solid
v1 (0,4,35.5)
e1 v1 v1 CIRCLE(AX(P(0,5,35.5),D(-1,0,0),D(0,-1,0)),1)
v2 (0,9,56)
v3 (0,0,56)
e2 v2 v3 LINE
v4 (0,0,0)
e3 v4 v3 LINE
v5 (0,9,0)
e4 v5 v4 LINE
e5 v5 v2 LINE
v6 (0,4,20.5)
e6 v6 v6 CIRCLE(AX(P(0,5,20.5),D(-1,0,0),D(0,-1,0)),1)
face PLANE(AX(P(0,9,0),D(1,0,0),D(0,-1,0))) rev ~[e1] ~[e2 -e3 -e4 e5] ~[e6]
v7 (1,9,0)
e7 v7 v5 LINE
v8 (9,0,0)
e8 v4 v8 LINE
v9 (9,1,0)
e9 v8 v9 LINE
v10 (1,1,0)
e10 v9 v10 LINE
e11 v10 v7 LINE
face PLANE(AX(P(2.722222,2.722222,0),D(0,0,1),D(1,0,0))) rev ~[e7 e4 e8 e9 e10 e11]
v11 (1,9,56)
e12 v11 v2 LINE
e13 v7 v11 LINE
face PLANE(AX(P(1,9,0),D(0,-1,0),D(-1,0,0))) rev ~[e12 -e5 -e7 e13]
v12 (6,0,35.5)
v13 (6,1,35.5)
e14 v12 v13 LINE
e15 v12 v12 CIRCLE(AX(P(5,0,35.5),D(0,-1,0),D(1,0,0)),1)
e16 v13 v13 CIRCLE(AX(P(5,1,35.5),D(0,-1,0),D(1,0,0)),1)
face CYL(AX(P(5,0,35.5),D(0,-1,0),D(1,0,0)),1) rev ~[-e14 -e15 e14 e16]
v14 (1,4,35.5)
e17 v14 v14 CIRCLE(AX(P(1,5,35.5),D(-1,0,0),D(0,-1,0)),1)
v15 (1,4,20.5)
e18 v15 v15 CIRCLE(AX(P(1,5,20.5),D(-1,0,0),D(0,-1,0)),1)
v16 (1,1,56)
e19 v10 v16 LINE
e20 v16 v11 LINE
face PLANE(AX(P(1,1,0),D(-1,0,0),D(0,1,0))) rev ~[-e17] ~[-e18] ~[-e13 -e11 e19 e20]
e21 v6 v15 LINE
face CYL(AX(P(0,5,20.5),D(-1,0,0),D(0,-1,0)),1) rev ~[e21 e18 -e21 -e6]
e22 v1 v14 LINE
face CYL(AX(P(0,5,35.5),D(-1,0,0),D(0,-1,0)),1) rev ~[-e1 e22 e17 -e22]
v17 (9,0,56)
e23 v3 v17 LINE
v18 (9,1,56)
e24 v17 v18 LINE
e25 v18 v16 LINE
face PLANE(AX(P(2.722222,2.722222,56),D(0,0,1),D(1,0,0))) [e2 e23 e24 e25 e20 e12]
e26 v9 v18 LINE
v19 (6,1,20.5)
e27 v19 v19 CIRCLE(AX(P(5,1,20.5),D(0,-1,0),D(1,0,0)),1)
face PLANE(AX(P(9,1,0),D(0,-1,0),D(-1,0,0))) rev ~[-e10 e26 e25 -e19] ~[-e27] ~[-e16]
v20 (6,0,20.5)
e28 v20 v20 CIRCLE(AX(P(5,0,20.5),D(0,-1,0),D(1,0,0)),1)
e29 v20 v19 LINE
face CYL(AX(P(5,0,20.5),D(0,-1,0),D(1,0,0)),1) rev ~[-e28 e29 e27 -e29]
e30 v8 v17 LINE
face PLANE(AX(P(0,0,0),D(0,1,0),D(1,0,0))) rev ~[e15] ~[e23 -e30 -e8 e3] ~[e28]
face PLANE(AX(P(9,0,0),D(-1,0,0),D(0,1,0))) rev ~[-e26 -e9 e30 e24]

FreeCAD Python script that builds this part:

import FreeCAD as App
import Part
import Sketcher
from FreeCAD import Vector


def add_polygon(sketch, points):
    """Adds a closed chain of lines whose ends are joined by coincident constraints."""
    first, n = sketch.GeometryCount, len(points)
    for a, b in zip(points, points[1:] + points[:1]):
        sketch.addGeometry(Part.LineSegment(App.Vector(*a, 0), App.Vector(*b, 0)), False)
    for i in range(n):
        sketch.addConstraint(Sketcher.Constraint("Coincident", first + i, 2, first + (i + 1) % n, 1))

doc = App.newDocument("Part")
body = doc.addObject("PartDesign::Body", "Body")

sketch1 = body.newObject("Sketcher::SketchObject", "Sketch")
sketch1.AttachmentSupport = (doc.getObject("XY_Plane"), [""])
sketch1.MapMode = "FlatFace"
add_polygon(sketch1, [(0, 9), (0, 0), (9, 0), (9, 1), (1, 1), (1, 9)])
sketch1.addConstraint(Sketcher.Constraint("Vertical", 0))
sketch1.addConstraint(Sketcher.Constraint("Horizontal", 1))
sketch1.addConstraint(Sketcher.Constraint("Vertical", 2))
sketch1.addConstraint(Sketcher.Constraint("Horizontal", 3))
sketch1.addConstraint(Sketcher.Constraint("Vertical", 4))
sketch1.addConstraint(Sketcher.Constraint("Horizontal", 5))
sketch1.addConstraint(Sketcher.Constraint("Coincident", 0, 2, -1, 1))
sketch1.addConstraint(Sketcher.Constraint("Equal", 1, 0))
sketch1.addConstraint(Sketcher.Constraint("Equal", 5, 2))
sketch1.addConstraint(Sketcher.Constraint("DistanceX", 1, 1, 1, 2, 9.0))
sketch1.addConstraint(Sketcher.Constraint("DistanceX", 3, 2, 3, 1, 8.0))
pad1 = body.newObject("PartDesign::Pad", "Pad")
pad1.Profile = sketch1
pad1.Length = 56

sketch2 = body.newObject("Sketcher::SketchObject", "Sketch001")
sketch2.AttachmentSupport = (doc.getObject("XZ_Plane"), [""])
sketch2.MapMode = "FlatFace"
sketch2.addGeometry(Part.Circle(Vector(5, 35.5, 0), Vector(0, 0, 1), 1), False)
sketch2.addGeometry(Part.Circle(Vector(5, 20.5, 0), Vector(0, 0, 1), 1), False)
sketch2.addConstraint(Sketcher.Constraint("Equal", 0, 1))
sketch2.addConstraint(Sketcher.Constraint("Vertical", 0, 3, 1, 3))
sketch2.addConstraint(Sketcher.Constraint("Diameter", 0, 2.0))
sketch2.addConstraint(Sketcher.Constraint("DistanceX", -1, 1, 0, 3, 5.0))
sketch2.addConstraint(Sketcher.Constraint("DistanceY", 1, 3, 0, 3, 15.0))
sketch2.addConstraint(Sketcher.Constraint("DistanceY", -1, 1, 0, 3, 35.5))
pocket1 = body.newObject("PartDesign::Pocket", "Pocket")
pocket1.Profile = sketch2
pocket1.Type = "ThroughAll"

sketch3 = body.newObject("Sketcher::SketchObject", "Sketch002")
sketch3.AttachmentSupport = (doc.getObject("YZ_Plane"), [""])
sketch3.MapMode = "FlatFace"
sketch3.addGeometry(Part.Circle(Vector(5, 35.5, 0), Vector(0, 0, 1), 1), False)
sketch3.addGeometry(Part.Circle(Vector(5, 20.5, 0), Vector(0, 0, 1), 1), False)
sketch3.addConstraint(Sketcher.Constraint("Equal", 0, 1))
sketch3.addConstraint(Sketcher.Constraint("Vertical", 0, 3, 1, 3))
sketch3.addConstraint(Sketcher.Constraint("Diameter", 0, 2.0))
sketch3.addConstraint(Sketcher.Constraint("DistanceX", -1, 1, 0, 3, 5.0))
sketch3.addConstraint(Sketcher.Constraint("DistanceY", 1, 3, 0, 3, 15.0))
sketch3.addConstraint(Sketcher.Constraint("DistanceY", -1, 1, 0, 3, 35.5))
pocket2 = body.newObject("PartDesign::Pocket", "Pocket001")
pocket2.Profile = sketch3
pocket2.Type = "ThroughAll"
pocket2.Reversed = True

doc.recompute()
